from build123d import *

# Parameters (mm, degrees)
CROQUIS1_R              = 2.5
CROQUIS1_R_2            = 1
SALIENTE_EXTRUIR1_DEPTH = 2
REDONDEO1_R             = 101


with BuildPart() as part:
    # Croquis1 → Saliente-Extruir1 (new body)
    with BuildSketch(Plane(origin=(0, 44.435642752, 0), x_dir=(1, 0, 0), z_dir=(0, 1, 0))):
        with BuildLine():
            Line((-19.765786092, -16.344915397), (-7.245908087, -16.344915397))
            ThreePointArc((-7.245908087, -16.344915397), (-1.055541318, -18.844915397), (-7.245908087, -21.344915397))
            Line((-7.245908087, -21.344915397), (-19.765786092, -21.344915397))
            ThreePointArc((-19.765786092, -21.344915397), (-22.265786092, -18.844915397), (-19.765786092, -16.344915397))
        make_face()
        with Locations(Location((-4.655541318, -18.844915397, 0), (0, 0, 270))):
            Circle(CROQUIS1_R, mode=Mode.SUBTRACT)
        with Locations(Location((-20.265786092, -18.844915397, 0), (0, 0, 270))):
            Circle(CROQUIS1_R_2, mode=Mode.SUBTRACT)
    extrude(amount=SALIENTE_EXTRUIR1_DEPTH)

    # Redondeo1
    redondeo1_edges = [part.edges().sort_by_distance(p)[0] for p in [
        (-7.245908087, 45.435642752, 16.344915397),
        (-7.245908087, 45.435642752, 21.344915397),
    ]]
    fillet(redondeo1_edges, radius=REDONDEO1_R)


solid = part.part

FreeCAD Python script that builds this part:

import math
import FreeCAD as App
import Part
import Sketcher


def edges_at(feature, points):
    """Names of the edges that pass closest to the given points."""
    edges = feature.Shape.Edges
    near = lambda p: min(range(len(edges)), key=lambda i: edges[i].distToShape(Part.Vertex(*p))[0])
    return sorted({f"Edge{near(p) + 1}" for p in points})

doc = App.newDocument("Part")
body = doc.addObject("PartDesign::Body", "Body")

sketch1 = body.newObject("Sketcher::SketchObject", "Sketch")
sketch1.AttachmentSupport = (doc.getObject("XZ_Plane"), [""])
sketch1.MapMode = "FlatFace"
sketch1.AttachmentOffset = App.Placement(App.Vector(0, 0, -44.435643), App.Rotation())
sketch1.addGeometry(Part.LineSegment(App.Vector(-7.2, 16.3, 0), App.Vector(-19.8, 16.3, 0)), False)
sketch1.addGeometry(Part.ArcOfCircle(Part.Circle(App.Vector(-19.8, 18.8, 0), App.Vector(0, 0, 1), 2.5), math.radians(90), math.radians(270)), False)
sketch1.addGeometry(Part.LineSegment(App.Vector(-19.8, 21.3, 0), App.Vector(-7.2, 21.3, 0)), False)
sketch1.addGeometry(Part.ArcOfCircle(Part.Circle(App.Vector(-4.7, 18.8, 0), App.Vector(0, 0, 1), 3.6), math.radians(-136), math.radians(136)), False)
sketch1.addGeometry(Part.Circle(App.Vector(-4.7, 18.8, 0), App.Vector(0, 0, 1), 2.5), False)
sketch1.addGeometry(Part.Circle(App.Vector(-20.3, 18.8, 0), App.Vector(0, 0, 1), 1), False)
sketch1.addConstraint(Sketcher.Constraint("Tangent", 0, 2, 1, 2))
sketch1.addConstraint(Sketcher.Constraint("Tangent", 1, 1, 2, 1))
sketch1.addConstraint(Sketcher.Constraint("Coincident", 2, 2, 3, 2))
sketch1.addConstraint(Sketcher.Constraint("Coincident", 3, 1, 0, 1))
sketch1.addConstraint(Sketcher.Constraint("Horizontal", 0))
sketch1.addConstraint(Sketcher.Constraint("Horizontal", 2))
sketch1.addConstraint(Sketcher.Constraint("Coincident", 4, 3, 3, 3))
sketch1.addConstraint(Sketcher.Constraint("Equal", 1, 4))
sketch1.addConstraint(Sketcher.Constraint("Horizontal", 1, 3, 3, 3))
sketch1.addConstraint(Sketcher.Constraint("Horizontal", 4, 3, 5, 3))
sketch1.addConstraint(Sketcher.Constraint("Diameter", 4, 5.0))
sketch1.addConstraint(Sketcher.Constraint("Diameter", 5, 2.0))
sketch1.addConstraint(Sketcher.Constraint("Radius", 3, 3.6))
sketch1.addConstraint(Sketcher.Constraint("DistanceX", 5, 3, 1, 3, 0.5))
sketch1.addConstraint(Sketcher.Constraint("DistanceX", 0, 2, 0, 1, 12.519878))
sketch1.addConstraint(Sketcher.Constraint("DistanceX", 3, 3, -1, 1, 4.655541))
sketch1.addConstraint(Sketcher.Constraint("DistanceY", -1, 1, 1, 3, 18.844915))
pad1 = body.newObject("PartDesign::Pad", "Pad")
pad1.Profile = sketch1
pad1.Length = 2
pad1.Reversed = True
doc.recompute()

fillet = body.newObject("PartDesign::Fillet", "Fillet")
fillet.Base = (pad1, edges_at(pad1, [(-7.246, 45.436, 16.345), (-7.246, 45.436, 21.345)]))
fillet.Radius = 101

doc.recompute()
